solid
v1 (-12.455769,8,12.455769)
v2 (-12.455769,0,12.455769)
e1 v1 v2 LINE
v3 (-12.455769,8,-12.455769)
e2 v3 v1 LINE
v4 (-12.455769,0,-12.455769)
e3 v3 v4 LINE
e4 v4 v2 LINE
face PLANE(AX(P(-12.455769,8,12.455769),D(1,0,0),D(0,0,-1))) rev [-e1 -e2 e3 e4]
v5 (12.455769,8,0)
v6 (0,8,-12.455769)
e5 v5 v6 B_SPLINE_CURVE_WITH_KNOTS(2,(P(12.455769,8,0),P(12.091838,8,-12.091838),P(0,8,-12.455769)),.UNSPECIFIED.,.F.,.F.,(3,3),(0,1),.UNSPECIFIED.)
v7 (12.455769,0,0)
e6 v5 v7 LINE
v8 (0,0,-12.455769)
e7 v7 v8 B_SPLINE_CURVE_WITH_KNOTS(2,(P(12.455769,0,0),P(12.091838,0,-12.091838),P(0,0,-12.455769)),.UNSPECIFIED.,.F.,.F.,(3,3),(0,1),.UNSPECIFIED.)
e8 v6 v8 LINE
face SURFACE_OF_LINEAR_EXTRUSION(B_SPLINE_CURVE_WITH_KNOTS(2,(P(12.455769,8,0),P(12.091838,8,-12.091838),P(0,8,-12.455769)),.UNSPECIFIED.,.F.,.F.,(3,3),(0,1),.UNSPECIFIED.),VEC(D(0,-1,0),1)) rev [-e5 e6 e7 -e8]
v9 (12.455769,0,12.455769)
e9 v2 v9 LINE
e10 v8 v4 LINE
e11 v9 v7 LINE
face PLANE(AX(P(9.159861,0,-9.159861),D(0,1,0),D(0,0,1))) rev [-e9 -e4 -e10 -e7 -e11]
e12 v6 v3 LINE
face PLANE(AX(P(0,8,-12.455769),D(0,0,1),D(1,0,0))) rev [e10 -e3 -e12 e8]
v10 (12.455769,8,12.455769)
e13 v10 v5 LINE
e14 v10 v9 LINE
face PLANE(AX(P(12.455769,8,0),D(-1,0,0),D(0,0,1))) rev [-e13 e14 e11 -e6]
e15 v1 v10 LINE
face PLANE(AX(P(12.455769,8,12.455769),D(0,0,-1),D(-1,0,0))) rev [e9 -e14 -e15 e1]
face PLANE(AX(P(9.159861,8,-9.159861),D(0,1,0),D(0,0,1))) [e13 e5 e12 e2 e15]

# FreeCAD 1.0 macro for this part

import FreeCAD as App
import Part
import Sketcher

doc = App.newDocument("Part")
body = doc.addObject("PartDesign::Body", "Body")

sketch1 = doc.addObject("Sketcher::SketchObject", "Sketch")
body.addObject(sketch1)
sketch1.AttachmentSupport = (doc.XZ_Plane, [""])
sketch1.MapMode = "FlatFace"
sketch1.addGeometry([
    Part.LineSegment(App.Vector(0, -12.455769, 0), App.Vector(-12.455769, -12.455769, 0)),
    Part.LineSegment(App.Vector(-12.455769, -12.455769, 0), App.Vector(-12.455769, 12.455769, 0)),
    Part.LineSegment(App.Vector(-12.455769, 12.455769, 0), App.Vector(12.455769, 12.455769, 0)),
    Part.LineSegment(App.Vector(12.455769, 12.455769, 0), App.Vector(12.455769, 0, 0)),
    Part.BSplineCurve([App.Vector(0, -12.455769, 0), App.Vector(12.091838, -12.091838, 0), App.Vector(12.455769, 0, 0)], [3, 3], [0, 1], False, 2, [1, 1, 1], False),
], False)
sketch1.addConstraint([
    Sketcher.Constraint("Block", 4),
    Sketcher.Constraint("Coincident", 0, 2, 1, 1),
    Sketcher.Constraint("Coincident", 1, 2, 2, 1),
    Sketcher.Constraint("Coincident", 2, 2, 3, 1),
    Sketcher.Constraint("Coincident", 3, 2, 4, 2),
    Sketcher.Constraint("Coincident", 4, 1, 0, 1),
    Sketcher.Constraint("Horizontal", 0),
    Sketcher.Constraint("Vertical", 1),
    Sketcher.Constraint("Horizontal", 2),
    Sketcher.Constraint("Vertical", 3),
    Sketcher.Constraint("Symmetric", 0, 2, 2, 2, -1, 1),
])
pad1 = doc.addObject("PartDesign::Pad", "Pad")
body.addObject(pad1)
pad1.Profile = sketch1
pad1.Length = 8
pad1.Reversed = True

doc.recompute()
